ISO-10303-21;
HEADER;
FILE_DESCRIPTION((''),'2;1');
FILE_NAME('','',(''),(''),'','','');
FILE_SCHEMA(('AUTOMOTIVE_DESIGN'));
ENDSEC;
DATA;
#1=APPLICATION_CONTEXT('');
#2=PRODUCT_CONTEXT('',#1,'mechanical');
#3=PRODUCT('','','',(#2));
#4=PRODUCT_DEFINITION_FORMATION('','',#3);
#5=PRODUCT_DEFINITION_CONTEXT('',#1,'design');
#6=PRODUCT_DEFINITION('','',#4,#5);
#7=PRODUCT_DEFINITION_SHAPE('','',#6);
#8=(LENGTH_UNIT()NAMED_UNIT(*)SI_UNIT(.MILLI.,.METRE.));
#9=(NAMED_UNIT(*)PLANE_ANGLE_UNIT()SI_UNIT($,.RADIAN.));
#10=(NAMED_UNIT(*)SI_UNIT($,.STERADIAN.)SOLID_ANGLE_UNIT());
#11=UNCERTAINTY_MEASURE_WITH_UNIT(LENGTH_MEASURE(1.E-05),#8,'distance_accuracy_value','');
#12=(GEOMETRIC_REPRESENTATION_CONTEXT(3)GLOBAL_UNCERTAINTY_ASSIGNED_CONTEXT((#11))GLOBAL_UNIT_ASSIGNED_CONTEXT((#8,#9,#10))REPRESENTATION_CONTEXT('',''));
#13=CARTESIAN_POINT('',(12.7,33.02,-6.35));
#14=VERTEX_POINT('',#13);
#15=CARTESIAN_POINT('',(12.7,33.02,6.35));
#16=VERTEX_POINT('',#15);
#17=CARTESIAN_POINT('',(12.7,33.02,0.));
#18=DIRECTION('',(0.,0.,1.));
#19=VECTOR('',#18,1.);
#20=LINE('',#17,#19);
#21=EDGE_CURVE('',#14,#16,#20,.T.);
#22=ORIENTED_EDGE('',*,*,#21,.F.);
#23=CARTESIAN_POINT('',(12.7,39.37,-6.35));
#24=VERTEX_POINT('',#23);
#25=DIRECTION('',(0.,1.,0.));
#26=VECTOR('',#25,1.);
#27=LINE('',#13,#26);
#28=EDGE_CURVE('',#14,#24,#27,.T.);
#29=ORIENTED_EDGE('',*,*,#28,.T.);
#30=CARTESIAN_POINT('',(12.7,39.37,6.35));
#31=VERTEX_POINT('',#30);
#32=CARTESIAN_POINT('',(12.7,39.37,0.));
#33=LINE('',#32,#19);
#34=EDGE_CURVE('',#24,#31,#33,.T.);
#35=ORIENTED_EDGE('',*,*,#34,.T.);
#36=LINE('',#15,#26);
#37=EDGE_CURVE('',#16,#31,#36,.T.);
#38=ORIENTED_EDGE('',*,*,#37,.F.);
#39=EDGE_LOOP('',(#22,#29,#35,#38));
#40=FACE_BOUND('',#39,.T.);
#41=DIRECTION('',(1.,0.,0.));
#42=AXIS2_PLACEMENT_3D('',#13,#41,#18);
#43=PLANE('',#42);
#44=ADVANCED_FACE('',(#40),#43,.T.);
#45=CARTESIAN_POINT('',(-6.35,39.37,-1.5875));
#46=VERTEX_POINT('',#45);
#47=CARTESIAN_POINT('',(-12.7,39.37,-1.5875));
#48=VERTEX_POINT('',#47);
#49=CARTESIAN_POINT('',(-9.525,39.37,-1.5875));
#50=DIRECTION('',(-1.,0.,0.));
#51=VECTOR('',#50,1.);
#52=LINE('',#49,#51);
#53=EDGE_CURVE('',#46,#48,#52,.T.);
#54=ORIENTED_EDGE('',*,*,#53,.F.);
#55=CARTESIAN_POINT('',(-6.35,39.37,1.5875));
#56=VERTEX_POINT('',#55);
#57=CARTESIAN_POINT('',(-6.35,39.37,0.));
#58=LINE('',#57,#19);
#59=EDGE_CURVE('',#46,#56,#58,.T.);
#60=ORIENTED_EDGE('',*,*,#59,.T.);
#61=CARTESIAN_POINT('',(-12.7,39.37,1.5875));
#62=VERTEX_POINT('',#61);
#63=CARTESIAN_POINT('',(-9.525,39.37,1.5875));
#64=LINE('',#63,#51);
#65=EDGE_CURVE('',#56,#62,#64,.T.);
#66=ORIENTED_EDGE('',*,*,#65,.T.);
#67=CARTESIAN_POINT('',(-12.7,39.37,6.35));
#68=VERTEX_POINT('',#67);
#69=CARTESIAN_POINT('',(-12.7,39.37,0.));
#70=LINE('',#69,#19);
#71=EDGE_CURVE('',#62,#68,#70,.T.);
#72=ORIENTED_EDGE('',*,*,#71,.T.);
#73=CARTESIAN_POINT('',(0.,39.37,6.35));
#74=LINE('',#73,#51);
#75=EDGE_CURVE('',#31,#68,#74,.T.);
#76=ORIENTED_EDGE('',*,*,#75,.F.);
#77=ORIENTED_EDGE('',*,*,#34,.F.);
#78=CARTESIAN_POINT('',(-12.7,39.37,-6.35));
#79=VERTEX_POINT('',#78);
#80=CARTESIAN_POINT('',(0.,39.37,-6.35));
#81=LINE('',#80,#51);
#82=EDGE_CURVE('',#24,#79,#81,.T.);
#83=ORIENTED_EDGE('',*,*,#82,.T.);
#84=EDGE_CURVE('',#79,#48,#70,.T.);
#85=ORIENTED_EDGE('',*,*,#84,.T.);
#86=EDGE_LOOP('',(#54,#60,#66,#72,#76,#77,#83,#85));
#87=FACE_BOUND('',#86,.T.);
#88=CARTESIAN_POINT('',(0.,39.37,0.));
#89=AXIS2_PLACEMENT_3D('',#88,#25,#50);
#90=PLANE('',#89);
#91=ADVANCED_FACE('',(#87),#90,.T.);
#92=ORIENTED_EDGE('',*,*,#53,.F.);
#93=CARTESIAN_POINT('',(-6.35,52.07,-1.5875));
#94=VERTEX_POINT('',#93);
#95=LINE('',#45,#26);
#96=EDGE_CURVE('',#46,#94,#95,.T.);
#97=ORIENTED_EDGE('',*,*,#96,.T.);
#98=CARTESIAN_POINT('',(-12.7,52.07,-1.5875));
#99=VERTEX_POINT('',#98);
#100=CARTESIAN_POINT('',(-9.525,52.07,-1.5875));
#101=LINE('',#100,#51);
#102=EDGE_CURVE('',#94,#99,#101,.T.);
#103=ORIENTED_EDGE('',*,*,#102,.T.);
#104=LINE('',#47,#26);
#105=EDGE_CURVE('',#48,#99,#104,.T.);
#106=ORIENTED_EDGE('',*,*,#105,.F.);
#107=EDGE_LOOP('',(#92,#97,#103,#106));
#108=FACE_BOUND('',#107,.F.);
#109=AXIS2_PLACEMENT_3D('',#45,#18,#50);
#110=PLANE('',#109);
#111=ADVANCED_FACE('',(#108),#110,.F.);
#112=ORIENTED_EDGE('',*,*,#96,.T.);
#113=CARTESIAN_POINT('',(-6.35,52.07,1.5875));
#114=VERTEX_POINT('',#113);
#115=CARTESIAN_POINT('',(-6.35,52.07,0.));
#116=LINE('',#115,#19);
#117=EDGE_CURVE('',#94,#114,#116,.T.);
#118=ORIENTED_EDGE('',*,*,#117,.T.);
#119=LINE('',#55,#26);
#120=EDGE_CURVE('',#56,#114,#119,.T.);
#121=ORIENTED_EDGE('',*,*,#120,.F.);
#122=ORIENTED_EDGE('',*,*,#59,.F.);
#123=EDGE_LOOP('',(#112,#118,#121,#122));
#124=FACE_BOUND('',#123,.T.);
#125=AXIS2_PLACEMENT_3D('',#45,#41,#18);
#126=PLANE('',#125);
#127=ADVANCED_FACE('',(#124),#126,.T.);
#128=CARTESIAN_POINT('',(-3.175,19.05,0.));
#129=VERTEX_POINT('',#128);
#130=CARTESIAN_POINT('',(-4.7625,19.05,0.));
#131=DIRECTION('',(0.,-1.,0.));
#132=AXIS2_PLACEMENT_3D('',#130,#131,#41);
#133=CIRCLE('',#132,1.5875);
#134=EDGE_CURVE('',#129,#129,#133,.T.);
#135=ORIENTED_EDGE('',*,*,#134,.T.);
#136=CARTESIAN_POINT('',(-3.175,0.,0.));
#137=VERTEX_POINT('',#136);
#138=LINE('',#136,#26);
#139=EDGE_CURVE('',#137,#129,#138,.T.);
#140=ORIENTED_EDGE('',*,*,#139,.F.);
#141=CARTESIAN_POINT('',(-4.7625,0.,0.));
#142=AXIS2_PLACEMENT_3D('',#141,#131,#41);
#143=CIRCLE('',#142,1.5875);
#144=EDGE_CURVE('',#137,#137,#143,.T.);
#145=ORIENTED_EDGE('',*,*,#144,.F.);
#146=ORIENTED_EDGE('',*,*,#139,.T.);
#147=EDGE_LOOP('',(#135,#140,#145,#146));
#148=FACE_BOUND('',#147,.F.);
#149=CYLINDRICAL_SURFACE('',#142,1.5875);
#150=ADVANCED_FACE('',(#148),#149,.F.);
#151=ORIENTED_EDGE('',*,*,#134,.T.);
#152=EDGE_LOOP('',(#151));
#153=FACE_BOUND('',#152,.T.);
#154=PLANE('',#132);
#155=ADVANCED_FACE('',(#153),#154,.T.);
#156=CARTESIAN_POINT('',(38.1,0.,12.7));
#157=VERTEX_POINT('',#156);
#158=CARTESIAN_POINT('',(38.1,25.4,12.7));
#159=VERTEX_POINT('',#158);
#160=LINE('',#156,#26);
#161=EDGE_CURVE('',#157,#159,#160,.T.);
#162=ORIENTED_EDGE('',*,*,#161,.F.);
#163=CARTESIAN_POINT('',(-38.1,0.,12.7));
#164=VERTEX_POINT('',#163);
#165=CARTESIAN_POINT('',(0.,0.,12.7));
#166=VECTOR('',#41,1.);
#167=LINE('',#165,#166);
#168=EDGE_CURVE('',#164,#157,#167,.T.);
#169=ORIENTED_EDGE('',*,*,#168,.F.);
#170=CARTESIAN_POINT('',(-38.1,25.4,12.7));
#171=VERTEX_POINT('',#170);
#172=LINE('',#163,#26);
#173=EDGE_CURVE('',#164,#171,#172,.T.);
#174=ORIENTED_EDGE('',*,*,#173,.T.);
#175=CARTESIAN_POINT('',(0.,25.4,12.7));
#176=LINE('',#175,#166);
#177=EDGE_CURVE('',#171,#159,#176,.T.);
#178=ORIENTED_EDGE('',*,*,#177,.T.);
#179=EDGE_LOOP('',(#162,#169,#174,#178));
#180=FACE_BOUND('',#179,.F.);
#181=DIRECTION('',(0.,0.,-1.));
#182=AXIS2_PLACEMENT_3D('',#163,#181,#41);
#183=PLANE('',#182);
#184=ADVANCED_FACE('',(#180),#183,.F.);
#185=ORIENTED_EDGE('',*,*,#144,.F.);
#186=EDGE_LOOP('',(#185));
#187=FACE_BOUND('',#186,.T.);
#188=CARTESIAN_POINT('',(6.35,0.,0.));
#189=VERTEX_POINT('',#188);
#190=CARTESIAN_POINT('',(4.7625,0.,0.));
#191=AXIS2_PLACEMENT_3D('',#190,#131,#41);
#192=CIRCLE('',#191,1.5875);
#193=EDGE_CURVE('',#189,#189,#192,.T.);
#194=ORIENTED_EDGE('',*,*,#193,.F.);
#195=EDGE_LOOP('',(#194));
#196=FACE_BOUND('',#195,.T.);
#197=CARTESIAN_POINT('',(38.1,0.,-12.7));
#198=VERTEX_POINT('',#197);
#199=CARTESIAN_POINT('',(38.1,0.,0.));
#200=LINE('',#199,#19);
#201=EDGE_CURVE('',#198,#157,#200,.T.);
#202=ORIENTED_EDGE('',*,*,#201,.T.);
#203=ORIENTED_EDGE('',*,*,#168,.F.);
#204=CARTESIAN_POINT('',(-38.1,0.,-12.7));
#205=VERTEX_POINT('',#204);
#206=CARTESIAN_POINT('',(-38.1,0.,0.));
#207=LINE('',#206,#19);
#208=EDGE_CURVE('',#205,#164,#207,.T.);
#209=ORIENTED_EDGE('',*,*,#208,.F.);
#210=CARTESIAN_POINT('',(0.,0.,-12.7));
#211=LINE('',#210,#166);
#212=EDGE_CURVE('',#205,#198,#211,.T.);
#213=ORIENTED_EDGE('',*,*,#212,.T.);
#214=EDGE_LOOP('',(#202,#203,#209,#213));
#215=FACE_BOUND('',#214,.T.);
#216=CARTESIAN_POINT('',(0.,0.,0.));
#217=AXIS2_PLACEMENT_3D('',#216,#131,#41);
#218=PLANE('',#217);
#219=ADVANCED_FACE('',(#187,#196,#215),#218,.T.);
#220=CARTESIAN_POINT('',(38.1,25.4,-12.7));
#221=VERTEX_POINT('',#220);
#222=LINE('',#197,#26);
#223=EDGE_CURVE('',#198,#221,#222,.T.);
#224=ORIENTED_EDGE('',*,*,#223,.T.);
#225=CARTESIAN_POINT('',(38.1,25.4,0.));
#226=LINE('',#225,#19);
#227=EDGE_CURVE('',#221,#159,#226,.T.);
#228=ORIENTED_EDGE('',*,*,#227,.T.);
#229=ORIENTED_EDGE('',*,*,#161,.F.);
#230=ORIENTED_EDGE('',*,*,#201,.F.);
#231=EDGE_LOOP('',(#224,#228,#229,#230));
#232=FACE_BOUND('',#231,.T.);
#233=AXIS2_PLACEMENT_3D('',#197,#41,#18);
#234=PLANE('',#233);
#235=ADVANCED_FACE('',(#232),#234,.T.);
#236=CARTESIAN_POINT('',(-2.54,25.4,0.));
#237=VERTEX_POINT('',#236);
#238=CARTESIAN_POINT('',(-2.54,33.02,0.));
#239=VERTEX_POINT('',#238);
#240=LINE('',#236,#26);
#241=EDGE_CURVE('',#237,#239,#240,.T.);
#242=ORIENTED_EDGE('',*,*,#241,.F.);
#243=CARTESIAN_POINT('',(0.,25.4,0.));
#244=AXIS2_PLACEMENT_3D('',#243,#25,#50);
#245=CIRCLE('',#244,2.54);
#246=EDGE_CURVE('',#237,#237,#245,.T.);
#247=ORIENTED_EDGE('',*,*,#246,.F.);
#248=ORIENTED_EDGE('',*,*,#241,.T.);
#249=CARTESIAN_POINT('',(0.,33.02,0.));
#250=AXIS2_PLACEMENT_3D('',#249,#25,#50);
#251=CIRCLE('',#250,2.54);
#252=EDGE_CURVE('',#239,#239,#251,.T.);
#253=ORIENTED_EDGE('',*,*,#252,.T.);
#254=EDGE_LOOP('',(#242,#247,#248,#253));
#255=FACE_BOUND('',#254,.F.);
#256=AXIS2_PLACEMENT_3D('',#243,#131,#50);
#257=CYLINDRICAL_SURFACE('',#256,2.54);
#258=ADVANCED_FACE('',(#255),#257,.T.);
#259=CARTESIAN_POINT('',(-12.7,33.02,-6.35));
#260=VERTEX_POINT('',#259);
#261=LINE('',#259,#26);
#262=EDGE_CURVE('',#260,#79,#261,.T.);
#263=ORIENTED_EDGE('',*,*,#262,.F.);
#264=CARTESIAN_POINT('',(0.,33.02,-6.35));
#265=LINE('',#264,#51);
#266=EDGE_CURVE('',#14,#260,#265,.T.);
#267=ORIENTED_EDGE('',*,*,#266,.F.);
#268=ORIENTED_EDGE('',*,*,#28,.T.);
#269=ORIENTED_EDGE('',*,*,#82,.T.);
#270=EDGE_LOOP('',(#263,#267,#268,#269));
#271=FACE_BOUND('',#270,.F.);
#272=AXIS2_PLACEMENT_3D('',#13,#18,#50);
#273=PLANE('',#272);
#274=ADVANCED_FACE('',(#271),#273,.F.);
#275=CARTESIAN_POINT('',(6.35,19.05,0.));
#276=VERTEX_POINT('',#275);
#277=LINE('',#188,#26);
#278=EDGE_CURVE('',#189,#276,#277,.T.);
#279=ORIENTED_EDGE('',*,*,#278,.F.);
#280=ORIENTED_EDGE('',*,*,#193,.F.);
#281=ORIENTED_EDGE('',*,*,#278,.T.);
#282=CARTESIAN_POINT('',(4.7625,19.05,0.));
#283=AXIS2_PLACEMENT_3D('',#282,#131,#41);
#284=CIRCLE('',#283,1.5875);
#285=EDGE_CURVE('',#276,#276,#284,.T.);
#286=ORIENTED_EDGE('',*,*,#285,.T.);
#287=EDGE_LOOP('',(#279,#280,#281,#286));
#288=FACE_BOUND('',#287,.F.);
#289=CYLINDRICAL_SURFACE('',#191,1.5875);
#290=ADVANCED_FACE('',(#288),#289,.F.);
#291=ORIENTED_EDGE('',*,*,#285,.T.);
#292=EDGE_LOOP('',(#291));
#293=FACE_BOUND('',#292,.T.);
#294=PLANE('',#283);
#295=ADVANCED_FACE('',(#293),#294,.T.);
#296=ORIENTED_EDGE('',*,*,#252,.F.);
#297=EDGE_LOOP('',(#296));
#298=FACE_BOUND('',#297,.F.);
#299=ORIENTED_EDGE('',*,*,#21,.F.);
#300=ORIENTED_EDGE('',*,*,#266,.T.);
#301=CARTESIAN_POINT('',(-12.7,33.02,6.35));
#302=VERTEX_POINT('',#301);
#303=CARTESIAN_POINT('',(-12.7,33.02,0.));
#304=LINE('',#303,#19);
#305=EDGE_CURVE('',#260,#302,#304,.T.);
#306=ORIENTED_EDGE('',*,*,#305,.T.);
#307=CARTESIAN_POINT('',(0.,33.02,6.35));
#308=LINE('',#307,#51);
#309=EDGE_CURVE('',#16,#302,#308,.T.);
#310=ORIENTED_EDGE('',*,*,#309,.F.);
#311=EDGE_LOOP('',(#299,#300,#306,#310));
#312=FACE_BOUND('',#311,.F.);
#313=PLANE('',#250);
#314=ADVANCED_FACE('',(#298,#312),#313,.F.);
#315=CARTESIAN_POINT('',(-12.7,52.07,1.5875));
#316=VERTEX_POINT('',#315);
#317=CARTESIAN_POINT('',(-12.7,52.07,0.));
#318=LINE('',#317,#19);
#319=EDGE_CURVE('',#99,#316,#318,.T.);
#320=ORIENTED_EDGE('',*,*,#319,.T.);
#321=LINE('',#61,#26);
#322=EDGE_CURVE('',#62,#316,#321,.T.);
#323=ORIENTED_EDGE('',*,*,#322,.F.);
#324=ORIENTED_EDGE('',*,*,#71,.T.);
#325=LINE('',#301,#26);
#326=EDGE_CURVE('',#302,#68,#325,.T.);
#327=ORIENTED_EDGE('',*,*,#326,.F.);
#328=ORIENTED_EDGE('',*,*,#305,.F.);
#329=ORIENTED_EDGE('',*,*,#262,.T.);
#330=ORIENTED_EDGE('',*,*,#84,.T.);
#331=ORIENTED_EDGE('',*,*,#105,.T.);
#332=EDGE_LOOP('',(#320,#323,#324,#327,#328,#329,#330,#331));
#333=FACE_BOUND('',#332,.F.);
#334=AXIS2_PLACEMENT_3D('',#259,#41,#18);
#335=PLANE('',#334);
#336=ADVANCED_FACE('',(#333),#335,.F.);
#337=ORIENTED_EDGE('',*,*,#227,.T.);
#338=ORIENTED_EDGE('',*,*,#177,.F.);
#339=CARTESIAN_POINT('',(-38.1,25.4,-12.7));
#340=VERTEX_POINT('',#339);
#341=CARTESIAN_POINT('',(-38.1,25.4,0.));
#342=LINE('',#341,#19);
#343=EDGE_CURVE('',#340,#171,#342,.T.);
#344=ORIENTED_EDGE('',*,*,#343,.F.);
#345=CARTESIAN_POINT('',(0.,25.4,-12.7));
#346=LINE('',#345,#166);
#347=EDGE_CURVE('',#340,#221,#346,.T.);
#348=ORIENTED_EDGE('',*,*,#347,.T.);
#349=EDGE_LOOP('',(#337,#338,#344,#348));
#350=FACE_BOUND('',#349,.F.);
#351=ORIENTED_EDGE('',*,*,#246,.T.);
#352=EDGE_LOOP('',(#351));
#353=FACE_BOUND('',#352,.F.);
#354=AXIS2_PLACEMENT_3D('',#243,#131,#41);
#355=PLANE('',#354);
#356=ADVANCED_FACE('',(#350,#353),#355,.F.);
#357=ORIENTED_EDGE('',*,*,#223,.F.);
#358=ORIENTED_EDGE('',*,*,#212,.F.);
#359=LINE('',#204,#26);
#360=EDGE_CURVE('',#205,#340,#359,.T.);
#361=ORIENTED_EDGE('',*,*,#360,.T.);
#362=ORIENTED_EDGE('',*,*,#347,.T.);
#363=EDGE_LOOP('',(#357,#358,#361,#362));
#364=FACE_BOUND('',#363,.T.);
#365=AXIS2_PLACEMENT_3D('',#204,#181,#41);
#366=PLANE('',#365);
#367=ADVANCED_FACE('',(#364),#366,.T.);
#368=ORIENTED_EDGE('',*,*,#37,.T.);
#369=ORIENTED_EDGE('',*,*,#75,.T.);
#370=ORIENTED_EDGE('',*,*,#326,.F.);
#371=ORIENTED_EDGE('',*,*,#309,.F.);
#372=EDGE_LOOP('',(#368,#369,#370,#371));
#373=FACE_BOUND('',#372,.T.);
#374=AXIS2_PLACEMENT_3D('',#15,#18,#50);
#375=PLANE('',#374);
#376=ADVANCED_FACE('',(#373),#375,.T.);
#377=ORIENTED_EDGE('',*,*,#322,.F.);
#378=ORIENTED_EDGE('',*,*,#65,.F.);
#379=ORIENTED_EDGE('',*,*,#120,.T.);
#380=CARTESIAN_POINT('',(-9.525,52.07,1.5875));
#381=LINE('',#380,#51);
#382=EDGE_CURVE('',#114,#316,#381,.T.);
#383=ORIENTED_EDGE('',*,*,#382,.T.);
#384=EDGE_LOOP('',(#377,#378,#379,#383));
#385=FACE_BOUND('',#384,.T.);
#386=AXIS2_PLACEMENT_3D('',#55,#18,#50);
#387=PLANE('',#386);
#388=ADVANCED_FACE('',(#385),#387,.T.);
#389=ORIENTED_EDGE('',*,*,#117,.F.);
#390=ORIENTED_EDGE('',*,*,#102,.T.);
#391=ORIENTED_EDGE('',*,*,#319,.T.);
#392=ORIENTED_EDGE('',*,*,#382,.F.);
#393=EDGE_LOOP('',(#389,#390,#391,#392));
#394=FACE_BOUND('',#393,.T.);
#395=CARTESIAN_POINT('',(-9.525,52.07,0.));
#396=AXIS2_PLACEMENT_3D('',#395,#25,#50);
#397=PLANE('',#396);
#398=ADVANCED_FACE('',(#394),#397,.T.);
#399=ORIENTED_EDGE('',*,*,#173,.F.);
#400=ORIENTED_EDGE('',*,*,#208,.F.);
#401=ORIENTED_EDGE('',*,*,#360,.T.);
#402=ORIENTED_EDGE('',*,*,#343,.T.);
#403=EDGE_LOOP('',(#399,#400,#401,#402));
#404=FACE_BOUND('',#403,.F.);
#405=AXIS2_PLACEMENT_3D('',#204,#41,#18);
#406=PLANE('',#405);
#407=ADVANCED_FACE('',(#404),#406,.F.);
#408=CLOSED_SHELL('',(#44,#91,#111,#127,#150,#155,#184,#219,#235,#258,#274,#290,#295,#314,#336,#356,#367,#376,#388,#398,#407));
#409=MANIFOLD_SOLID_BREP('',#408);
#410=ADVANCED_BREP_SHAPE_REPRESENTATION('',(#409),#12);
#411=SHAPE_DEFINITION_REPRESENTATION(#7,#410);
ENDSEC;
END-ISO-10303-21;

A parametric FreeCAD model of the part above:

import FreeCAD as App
import Part
import Sketcher

V = App.Vector
Q = App.Units.Quantity

doc = App.newDocument("Part")
body = doc.addObject("PartDesign::Body", "Body")

sketch1 = body.newObject("Sketcher::SketchObject", "Sketch")
sketch1.AttachmentSupport = (doc.getObject("XZ_Plane"), [""])
sketch1.MapMode = "FlatFace"
sketch1.addGeometry([
    Part.LineSegment(V(-38, 13, 0), V(-38, -13, 0)),
    Part.LineSegment(V(-38, -13, 0), V(38, -13, 0)),
    Part.LineSegment(V(38, -13, 0), V(38, 13, 0)),
    Part.LineSegment(V(38, 13, 0), V(-38, 13, 0)),
], False)
sketch1.addConstraint([
    Sketcher.Constraint("Coincident", 0, 2, 1, 1),
    Sketcher.Constraint("Coincident", 1, 2, 2, 1),
    Sketcher.Constraint("Coincident", 2, 2, 3, 1),
    Sketcher.Constraint("Coincident", 3, 2, 0, 1),
    Sketcher.Constraint("Vertical", 0),
    Sketcher.Constraint("Horizontal", 1),
    Sketcher.Constraint("Vertical", 2),
    Sketcher.Constraint("Horizontal", 3),
    Sketcher.Constraint("Symmetric", 0, 2, 2, 2, -1, 1),
    Sketcher.Constraint("DistanceX", 1, 1, 1, 2, Q("3 in")),
    Sketcher.Constraint("DistanceY", 0, 2, 0, 1, Q("1 in")),
])
pad1 = body.newObject("PartDesign::Pad", "Pad")
pad1.Profile = sketch1
pad1.Length = Q("1 in")
pad1.Reversed = True

sketch2 = body.newObject("Sketcher::SketchObject", "Sketch001")
sketch2.AttachmentSupport = (doc.getObject("XZ_Plane"), [""])
sketch2.MapMode = "FlatFace"
sketch2.AttachmentOffset = App.Placement(V(0, 0, -1 * 25.4), App.Rotation())
sketch2.addGeometry(Part.Circle(V(0, 0, 0), V(0, 0, 1), 2.5), False)
sketch2.addConstraint([
    Sketcher.Constraint("Coincident", 0, 3, -1, 1),
    Sketcher.Constraint("Diameter", 0, Q("0.2 in")),
])
pad2 = body.newObject("PartDesign::Pad", "Pad001")
pad2.Profile = sketch2
pad2.Length = Q("0.3 in")
pad2.Reversed = True

sketch3 = body.newObject("Sketcher::SketchObject", "Sketch002")
sketch3.AttachmentSupport = (doc.getObject("XZ_Plane"), [""])
sketch3.MapMode = "FlatFace"
sketch3.AttachmentOffset = App.Placement(V(0, 0, -1.3 * 25.4), App.Rotation())
sketch3.addGeometry([
    Part.LineSegment(V(13, 6, 0), V(13, -6, 0)),
    Part.LineSegment(V(13, -6, 0), V(-13, -6, 0)),
    Part.LineSegment(V(-13, -6, 0), V(-13, 6, 0)),
    Part.LineSegment(V(-13, 6, 0), V(13, 6, 0)),
], False)
sketch3.addConstraint([
    Sketcher.Constraint("Coincident", 0, 2, 1, 1),
    Sketcher.Constraint("Coincident", 1, 2, 2, 1),
    Sketcher.Constraint("Coincident", 2, 2, 3, 1),
    Sketcher.Constraint("Coincident", 3, 2, 0, 1),
    Sketcher.Constraint("Vertical", 0),
    Sketcher.Constraint("Horizontal", 1),
    Sketcher.Constraint("Vertical", 2),
    Sketcher.Constraint("Horizontal", 3),
    Sketcher.Constraint("Symmetric", 0, 2, 2, 2, -1, 1),
    Sketcher.Constraint("DistanceX", 1, 2, 1, 1, Q("1 in")),
    Sketcher.Constraint("DistanceY", 0, 2, 0, 1, Q("0.5 in")),
])
pad3 = body.newObject("PartDesign::Pad", "Pad002")
pad3.Profile = sketch3
pad3.Length = Q("0.25 in")
pad3.Reversed = True

sketch4 = body.newObject("Sketcher::SketchObject", "Sketch003")
sketch4.AttachmentSupport = (doc.getObject("XZ_Plane"), [""])
sketch4.MapMode = "FlatFace"
sketch4.AttachmentOffset = App.Placement(V(0, 0, -1.55 * 25.4), App.Rotation())
sketch4.addGeometry([
    Part.LineSegment(V(-6.3, 1.6, 0), V(-6.3, -1.6, 0)),
    Part.LineSegment(V(-6.3, -1.6, 0), V(-12.7, -1.6, 0)),
    Part.LineSegment(V(-12.7, -1.6, 0), V(-12.7, 1.6, 0)),
    Part.LineSegment(V(-12.7, 1.6, 0), V(-6.3, 1.6, 0)),
], False)
sketch4.addConstraint([
    Sketcher.Constraint("Coincident", 0, 2, 1, 1),
    Sketcher.Constraint("Coincident", 1, 2, 2, 1),
    Sketcher.Constraint("Coincident", 2, 2, 3, 1),
    Sketcher.Constraint("Coincident", 3, 2, 0, 1),
    Sketcher.Constraint("Vertical", 0),
    Sketcher.Constraint("Horizontal", 1),
    Sketcher.Constraint("Vertical", 2),
    Sketcher.Constraint("Horizontal", 3),
    Sketcher.Constraint("DistanceX", 1, 2, 1, 1, Q("0.25 in")),
    Sketcher.Constraint("DistanceX", 1, 2, -1, 1, Q("0.5 in")),
    Sketcher.Constraint("DistanceY", 0, 2, 0, 1, Q("0.125 in")),
    Sketcher.Constraint("DistanceY", 0, 2, -1, 1, Q("0.0625 in")),
])
pad4 = body.newObject("PartDesign::Pad", "Pad003")
pad4.Profile = sketch4
pad4.Length = Q("0.5 in")
pad4.Reversed = True

sketch5 = body.newObject("Sketcher::SketchObject", "Sketch004")
sketch5.AttachmentSupport = (doc.getObject("XZ_Plane"), [""])
sketch5.MapMode = "FlatFace"
sketch5.addGeometry([
    Part.Circle(V(-4.8, 0, 0), V(0, 0, 1), 1.6),
    Part.Circle(V(4.8, 0, 0), V(0, 0, 1), 1.6),
], False)
sketch5.addConstraint([
    Sketcher.Constraint("Equal", 0, 1),
    Sketcher.Constraint("Symmetric", 0, 3, 1, 3, -1, 1),
    Sketcher.Constraint("PointOnObject", 0, 3, -1),
    Sketcher.Constraint("Diameter", 0, Q("0.125 in")),
    Sketcher.Constraint("DistanceX", 0, 3, -1, 1, Q("0.1875 in")),
])
pocket1 = body.newObject("PartDesign::Pocket", "Pocket")
pocket1.Profile = sketch5
pocket1.Length = Q("0.75 in")

doc.recompute()
